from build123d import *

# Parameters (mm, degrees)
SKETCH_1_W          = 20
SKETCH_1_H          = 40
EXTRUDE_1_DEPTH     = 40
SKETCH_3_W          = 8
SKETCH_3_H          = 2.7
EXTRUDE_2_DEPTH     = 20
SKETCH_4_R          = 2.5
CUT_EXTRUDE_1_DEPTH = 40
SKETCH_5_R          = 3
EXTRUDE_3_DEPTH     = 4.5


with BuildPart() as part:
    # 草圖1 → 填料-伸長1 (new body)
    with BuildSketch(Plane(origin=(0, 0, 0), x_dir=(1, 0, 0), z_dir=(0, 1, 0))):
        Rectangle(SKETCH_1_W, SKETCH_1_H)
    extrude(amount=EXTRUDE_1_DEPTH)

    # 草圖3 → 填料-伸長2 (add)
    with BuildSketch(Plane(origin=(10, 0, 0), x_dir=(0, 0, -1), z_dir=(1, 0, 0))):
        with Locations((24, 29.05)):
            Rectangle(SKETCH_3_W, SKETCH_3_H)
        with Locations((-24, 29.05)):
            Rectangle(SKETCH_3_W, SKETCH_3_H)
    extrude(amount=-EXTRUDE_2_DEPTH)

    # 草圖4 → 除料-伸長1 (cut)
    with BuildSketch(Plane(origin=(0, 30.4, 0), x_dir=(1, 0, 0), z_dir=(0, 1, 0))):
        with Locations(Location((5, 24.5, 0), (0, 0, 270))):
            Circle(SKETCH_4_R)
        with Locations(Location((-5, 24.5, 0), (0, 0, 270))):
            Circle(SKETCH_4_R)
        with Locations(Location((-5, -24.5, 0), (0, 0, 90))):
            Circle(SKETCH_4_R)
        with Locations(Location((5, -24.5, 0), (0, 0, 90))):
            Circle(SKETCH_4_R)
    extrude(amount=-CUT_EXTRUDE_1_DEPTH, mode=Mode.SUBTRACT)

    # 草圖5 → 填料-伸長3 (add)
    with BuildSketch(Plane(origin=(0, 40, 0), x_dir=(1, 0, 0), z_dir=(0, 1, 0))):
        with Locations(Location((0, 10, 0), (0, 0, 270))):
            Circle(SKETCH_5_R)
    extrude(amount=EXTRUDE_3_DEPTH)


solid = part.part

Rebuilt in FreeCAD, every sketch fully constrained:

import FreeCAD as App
import Part
import Sketcher
from FreeCAD import Vector
Q = App.Units.Quantity


def add_polygon(sketch, points):
    """Adds a closed chain of lines whose ends are joined by coincident constraints."""
    first, n = sketch.GeometryCount, len(points)
    for a, b in zip(points, points[1:] + points[:1]):
        sketch.addGeometry(Part.LineSegment(App.Vector(*a, 0), App.Vector(*b, 0)), False)
    for i in range(n):
        sketch.addConstraint(Sketcher.Constraint("Coincident", first + i, 2, first + (i + 1) % n, 1))

doc = App.newDocument("Part")
params = doc.addObject("Spreadsheet::Sheet", "Params")
for row, (alias, value) in enumerate([
    ("sketch1_width", "20 mm"),
    ("sketch1_height", "40 mm"),
    ("pad1_length", "40 mm"),
    ("sketch2_height", "8 mm"),
    ("sketch2_width", "2.7 mm"),
    ("pad2_length", "20 mm"),
    ("sketch3_diameter", "5 mm"),
    ("pocket1_length", "40 mm"),
    ("sketch4_diameter", "6 mm"),
    ("pad3_length", "4.5 mm"),
], start=1):
    params.set(f"A{row}", alias)
    params.set(f"B{row}", "=" + value)
    params.setAlias(f"B{row}", alias)

body = doc.addObject("PartDesign::Body", "Body")

# Sketch on XZ plane
sketch1 = body.newObject("Sketcher::SketchObject", "Sketch")
sketch1.AttachmentSupport = (doc.getObject("XZ_Plane"), [""])
sketch1.MapMode = "FlatFace"
add_polygon(sketch1, [(-10, -20), (-10, 20), (10, 20), (10, -20)])  # lines 0-3
sketch1.addConstraint([
    Sketcher.Constraint("Vertical", 0),
    Sketcher.Constraint("Horizontal", 1),
    Sketcher.Constraint("Vertical", 2),
    Sketcher.Constraint("Horizontal", 3),
    Sketcher.Constraint("Symmetric", 0, 2, 2, 2, -1, 1),
    Sketcher.Constraint("DistanceX", 1, 1, 1, 2, Q("20 mm")),
    Sketcher.Constraint("DistanceY", 0, 1, 0, 2, Q("40 mm")),
])
sketch1.setExpression("Constraints[9]", "Params.sketch1_width")
sketch1.setExpression("Constraints[10]", "Params.sketch1_height")
pad1 = body.newObject("PartDesign::Pad", "Pad")
pad1.Profile = sketch1
pad1.setExpression("Length", "Params.pad1_length")
pad1.Reversed = True

# Sketch on YZ plane
sketch2 = body.newObject("Sketcher::SketchObject", "Sketch001")
sketch2.AttachmentSupport = (doc.getObject("YZ_Plane"), [""])
sketch2.MapMode = "FlatFace"
sketch2.AttachmentOffset = App.Placement(Vector(0, 0, 10), App.Rotation())
add_polygon(sketch2, [(30.4, -20), (27.7, -20), (27.7, -28), (30.4, -28)])  # lines 0-3
add_polygon(sketch2, [(30.4, 28), (27.7, 28), (27.7, 20), (30.4, 20)])  # lines 4-7
sketch2.addConstraint([
    Sketcher.Constraint("Horizontal", 0),
    Sketcher.Constraint("Vertical", 1),
    Sketcher.Constraint("Horizontal", 2),
    Sketcher.Constraint("Vertical", 3),
    Sketcher.Constraint("Horizontal", 4),
    Sketcher.Constraint("Vertical", 5),
    Sketcher.Constraint("Horizontal", 6),
    Sketcher.Constraint("Vertical", 7),
    Sketcher.Constraint("Symmetric", 1, 2, 4, 2, -1),
    Sketcher.Constraint("Symmetric", 3, 2, 6, 2, -1),
    Sketcher.Constraint("DistanceY", 1, 2, 1, 1, Q("8 mm")),
    Sketcher.Constraint("DistanceX", 0, 2, 0, 1, Q("2.7 mm")),
    Sketcher.Constraint("DistanceY", 0, 2, -1, 1, Q("20 mm")),
    Sketcher.Constraint("DistanceX", -1, 1, 0, 2, Q("27.7 mm")),
])
sketch2.setExpression("Constraints[18]", "Params.sketch2_height")
sketch2.setExpression("Constraints[19]", "Params.sketch2_width")
pad2 = body.newObject("PartDesign::Pad", "Pad001")
pad2.Profile = sketch2
pad2.setExpression("Length", "Params.pad2_length")
pad2.Reversed = True

# Sketch on XZ plane
sketch3 = body.newObject("Sketcher::SketchObject", "Sketch002")
sketch3.AttachmentSupport = (doc.getObject("XZ_Plane"), [""])
sketch3.MapMode = "FlatFace"
sketch3.AttachmentOffset = App.Placement(Vector(0, 0, -30.4), App.Rotation())
sketch3.addGeometry([
    Part.Circle(Vector(5, -24.5, 0), Vector(0, 0, 1), 2.5),
    Part.Circle(Vector(-5, -24.5, 0), Vector(0, 0, 1), 2.5),
    Part.Circle(Vector(-5, 24.5, 0), Vector(0, 0, 1), 2.5),
    Part.Circle(Vector(5, 24.5, 0), Vector(0, 0, 1), 2.5),
], False)
sketch3.addConstraint([
    Sketcher.Constraint("Equal", 0, 1),
    Sketcher.Constraint("Equal", 1, 2),
    Sketcher.Constraint("Equal", 2, 3),
    Sketcher.Constraint("Symmetric", 0, 3, 2, 3, -1, 1),
    Sketcher.Constraint("Symmetric", 1, 3, 3, 3, -1, 1),
    Sketcher.Constraint("Symmetric", 0, 3, 1, 3, -2),
    Sketcher.Constraint("Diameter", 0, Q("5 mm")),
    Sketcher.Constraint("DistanceX", -1, 1, 0, 3, Q("5 mm")),
    Sketcher.Constraint("DistanceY", 1, 3, 2, 3, Q("49 mm")),
])
sketch3.setExpression("Constraints[6]", "Params.sketch3_diameter")
pocket1 = body.newObject("PartDesign::Pocket", "Pocket")
pocket1.Profile = sketch3
pocket1.setExpression("Length", "Params.pocket1_length")
pocket1.Reversed = True

# Sketch on XZ plane
sketch4 = body.newObject("Sketcher::SketchObject", "Sketch003")
sketch4.AttachmentSupport = (doc.getObject("XZ_Plane"), [""])
sketch4.MapMode = "FlatFace"
sketch4.AttachmentOffset = App.Placement(Vector(0, 0, -40), App.Rotation())
sketch4.addGeometry(Part.Circle(Vector(0, -10, 0), Vector(0, 0, 1), 3), False)
sketch4.addConstraint([
    Sketcher.Constraint("PointOnObject", 0, 3, -2),
    Sketcher.Constraint("Diameter", 0, Q("6 mm")),
    Sketcher.Constraint("DistanceY", 0, 3, -1, 1, Q("10 mm")),
])
sketch4.setExpression("Constraints[1]", "Params.sketch4_diameter")
pad3 = body.newObject("PartDesign::Pad", "Pad002")
pad3.Profile = sketch4
pad3.setExpression("Length", "Params.pad3_length")
pad3.Reversed = True

doc.recompute()
